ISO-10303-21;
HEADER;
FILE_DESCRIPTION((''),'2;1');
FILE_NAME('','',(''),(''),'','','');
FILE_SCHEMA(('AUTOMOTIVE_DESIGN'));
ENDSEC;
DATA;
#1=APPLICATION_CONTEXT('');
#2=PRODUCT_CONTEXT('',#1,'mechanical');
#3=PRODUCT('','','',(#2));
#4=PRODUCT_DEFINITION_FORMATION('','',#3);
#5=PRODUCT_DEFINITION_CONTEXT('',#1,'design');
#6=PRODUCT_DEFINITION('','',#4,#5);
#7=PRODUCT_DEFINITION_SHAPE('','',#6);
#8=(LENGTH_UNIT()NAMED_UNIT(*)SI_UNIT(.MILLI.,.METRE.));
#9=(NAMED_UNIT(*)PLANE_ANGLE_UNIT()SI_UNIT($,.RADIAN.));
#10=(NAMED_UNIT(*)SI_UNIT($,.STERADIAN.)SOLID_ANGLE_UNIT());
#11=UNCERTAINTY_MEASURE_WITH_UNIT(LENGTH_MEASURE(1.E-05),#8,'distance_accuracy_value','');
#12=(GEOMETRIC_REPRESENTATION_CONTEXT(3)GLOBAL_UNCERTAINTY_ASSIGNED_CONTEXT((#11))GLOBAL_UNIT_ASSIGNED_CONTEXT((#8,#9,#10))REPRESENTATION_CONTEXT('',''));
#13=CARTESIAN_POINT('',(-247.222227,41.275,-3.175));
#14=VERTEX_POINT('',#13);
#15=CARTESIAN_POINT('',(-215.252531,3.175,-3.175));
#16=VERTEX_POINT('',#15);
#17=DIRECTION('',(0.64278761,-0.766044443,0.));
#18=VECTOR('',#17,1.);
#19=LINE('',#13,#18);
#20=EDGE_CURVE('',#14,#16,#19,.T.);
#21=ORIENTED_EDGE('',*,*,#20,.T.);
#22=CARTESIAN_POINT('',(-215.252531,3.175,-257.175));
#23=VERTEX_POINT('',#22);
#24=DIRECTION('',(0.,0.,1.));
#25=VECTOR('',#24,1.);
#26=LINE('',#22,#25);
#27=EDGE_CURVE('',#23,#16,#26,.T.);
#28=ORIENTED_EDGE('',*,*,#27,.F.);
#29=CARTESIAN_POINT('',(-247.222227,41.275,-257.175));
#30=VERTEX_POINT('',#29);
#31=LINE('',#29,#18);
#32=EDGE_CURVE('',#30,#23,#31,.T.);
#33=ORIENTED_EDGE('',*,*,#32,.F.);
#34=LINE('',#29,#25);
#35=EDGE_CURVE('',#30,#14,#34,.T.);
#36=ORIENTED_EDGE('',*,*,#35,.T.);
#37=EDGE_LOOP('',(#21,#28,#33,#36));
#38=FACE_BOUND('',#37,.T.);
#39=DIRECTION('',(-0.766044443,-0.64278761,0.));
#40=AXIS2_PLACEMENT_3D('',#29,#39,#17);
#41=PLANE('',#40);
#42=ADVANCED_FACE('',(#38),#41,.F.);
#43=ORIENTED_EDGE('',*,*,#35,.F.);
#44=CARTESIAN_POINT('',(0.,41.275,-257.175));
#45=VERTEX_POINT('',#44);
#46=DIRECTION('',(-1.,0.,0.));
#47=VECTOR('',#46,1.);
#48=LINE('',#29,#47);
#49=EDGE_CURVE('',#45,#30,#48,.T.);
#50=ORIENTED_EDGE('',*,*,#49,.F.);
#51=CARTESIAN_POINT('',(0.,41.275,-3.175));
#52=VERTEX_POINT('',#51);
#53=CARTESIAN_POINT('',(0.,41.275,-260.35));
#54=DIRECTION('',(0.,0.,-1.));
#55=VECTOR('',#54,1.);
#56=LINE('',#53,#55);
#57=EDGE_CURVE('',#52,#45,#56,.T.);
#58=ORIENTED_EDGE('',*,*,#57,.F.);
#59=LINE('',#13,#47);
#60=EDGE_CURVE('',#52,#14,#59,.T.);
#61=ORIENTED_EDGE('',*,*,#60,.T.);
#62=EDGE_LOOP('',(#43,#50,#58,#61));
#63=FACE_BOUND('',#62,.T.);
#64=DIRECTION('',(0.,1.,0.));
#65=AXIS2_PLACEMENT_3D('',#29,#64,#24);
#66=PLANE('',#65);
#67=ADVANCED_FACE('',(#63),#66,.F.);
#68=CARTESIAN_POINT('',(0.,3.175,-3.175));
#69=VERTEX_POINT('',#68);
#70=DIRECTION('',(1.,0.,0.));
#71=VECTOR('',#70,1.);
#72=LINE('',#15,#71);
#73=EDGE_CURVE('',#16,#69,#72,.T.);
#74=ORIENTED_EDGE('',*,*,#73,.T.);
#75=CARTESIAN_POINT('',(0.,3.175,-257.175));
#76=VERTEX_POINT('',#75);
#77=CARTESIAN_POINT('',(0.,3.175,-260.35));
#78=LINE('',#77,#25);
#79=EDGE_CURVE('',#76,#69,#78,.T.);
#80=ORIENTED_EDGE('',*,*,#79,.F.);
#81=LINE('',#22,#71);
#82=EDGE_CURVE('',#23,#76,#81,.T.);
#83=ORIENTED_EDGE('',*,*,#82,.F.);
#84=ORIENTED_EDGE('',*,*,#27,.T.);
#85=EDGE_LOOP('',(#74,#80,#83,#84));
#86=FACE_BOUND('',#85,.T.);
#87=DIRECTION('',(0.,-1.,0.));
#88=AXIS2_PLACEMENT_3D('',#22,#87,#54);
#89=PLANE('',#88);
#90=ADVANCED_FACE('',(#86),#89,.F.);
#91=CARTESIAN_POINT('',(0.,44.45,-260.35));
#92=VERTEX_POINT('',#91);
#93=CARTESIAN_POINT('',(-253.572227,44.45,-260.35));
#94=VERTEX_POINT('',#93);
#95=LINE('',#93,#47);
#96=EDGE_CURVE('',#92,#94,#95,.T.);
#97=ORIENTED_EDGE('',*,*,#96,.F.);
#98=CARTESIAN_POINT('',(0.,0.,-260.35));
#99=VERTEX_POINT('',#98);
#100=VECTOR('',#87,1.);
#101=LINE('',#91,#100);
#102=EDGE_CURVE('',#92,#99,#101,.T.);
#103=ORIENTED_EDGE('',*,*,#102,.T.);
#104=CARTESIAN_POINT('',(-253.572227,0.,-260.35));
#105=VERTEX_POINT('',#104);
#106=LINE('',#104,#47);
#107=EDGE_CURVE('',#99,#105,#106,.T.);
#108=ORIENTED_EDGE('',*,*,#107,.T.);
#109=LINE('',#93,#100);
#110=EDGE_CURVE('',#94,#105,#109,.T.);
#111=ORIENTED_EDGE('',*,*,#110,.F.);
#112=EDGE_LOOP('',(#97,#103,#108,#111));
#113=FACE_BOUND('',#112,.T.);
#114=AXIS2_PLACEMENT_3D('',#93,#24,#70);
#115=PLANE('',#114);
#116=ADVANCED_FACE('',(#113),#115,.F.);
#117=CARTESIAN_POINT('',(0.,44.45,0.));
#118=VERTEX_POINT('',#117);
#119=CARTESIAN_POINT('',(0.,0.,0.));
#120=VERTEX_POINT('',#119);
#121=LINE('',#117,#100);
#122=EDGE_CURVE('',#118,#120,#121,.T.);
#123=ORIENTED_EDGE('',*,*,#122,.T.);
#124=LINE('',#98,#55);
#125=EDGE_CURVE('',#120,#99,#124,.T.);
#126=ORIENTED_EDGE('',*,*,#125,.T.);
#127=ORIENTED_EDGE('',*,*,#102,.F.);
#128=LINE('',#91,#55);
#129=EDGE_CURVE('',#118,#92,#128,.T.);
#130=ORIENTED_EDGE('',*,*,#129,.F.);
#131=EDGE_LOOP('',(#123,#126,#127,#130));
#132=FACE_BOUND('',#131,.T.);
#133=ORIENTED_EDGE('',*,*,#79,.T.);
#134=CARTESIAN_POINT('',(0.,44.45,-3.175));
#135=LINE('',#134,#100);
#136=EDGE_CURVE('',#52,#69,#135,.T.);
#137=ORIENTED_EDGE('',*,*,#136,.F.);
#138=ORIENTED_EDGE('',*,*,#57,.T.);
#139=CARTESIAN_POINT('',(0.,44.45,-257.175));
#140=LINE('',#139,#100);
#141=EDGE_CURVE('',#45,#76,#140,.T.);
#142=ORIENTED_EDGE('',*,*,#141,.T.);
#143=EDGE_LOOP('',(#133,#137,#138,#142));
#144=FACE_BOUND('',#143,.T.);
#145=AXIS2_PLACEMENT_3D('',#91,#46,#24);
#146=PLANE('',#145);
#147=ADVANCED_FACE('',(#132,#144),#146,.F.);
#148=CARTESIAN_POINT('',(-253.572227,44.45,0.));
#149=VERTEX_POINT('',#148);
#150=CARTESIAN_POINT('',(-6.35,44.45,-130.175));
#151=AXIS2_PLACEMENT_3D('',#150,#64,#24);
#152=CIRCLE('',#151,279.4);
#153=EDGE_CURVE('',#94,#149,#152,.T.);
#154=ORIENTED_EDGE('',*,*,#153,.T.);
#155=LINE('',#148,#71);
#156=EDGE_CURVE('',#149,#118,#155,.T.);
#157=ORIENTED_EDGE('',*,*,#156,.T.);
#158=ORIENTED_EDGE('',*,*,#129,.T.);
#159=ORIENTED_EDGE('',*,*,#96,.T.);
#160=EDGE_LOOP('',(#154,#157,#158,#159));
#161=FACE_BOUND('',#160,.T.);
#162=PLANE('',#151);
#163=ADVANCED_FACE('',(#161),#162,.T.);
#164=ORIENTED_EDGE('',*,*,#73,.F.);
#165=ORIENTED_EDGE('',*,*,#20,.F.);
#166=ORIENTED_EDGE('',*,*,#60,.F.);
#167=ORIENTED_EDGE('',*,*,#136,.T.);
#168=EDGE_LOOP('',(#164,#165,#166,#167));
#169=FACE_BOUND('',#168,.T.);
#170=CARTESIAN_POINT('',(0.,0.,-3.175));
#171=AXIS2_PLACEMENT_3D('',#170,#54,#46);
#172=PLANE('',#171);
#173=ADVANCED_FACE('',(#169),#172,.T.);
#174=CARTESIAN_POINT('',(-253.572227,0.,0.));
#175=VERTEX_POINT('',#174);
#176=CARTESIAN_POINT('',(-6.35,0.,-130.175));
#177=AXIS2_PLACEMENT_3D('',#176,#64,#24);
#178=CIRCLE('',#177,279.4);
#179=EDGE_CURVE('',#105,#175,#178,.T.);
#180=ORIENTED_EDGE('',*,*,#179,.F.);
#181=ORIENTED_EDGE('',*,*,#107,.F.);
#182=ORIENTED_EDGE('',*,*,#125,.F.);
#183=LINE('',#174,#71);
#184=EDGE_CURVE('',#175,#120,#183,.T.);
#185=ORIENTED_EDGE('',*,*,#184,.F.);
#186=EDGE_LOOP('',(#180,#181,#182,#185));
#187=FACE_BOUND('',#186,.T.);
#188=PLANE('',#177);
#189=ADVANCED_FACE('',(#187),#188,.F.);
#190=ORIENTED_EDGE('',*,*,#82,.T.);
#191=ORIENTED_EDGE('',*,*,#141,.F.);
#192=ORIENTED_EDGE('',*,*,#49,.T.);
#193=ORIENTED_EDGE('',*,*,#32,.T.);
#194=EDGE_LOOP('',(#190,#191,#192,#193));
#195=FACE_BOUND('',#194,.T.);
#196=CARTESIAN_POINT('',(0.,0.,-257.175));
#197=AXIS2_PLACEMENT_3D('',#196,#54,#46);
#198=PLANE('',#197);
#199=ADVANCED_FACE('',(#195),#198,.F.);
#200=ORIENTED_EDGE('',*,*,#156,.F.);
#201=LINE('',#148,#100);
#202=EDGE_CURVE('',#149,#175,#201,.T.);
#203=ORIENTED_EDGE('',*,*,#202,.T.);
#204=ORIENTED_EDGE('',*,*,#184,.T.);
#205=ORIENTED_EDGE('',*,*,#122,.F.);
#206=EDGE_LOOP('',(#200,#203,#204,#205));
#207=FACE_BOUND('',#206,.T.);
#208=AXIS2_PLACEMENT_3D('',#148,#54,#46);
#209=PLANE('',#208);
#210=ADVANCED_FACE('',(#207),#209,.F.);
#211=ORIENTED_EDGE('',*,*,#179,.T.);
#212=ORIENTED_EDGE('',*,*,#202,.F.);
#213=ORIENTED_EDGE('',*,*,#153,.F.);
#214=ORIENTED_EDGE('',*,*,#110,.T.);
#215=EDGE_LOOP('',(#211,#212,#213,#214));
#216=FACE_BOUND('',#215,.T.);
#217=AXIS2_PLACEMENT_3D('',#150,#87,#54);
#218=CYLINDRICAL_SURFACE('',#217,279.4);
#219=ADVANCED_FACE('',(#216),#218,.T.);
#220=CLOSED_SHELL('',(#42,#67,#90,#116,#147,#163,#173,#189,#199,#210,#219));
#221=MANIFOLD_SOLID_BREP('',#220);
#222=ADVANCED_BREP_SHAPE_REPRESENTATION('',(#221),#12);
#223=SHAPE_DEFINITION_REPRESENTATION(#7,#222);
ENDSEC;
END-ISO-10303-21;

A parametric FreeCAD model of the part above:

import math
import FreeCAD as App
import Part
import Sketcher
from FreeCAD import Vector
Q = App.Units.Quantity


def add_polygon(sketch, points):
    """Adds a closed chain of lines whose ends are joined by coincident constraints."""
    first, n = sketch.GeometryCount, len(points)
    for a, b in zip(points, points[1:] + points[:1]):
        sketch.addGeometry(Part.LineSegment(App.Vector(*a, 0), App.Vector(*b, 0)), False)
    for i in range(n):
        sketch.addConstraint(Sketcher.Constraint("Coincident", first + i, 2, first + (i + 1) % n, 1))

doc = App.newDocument("Part")
body = doc.addObject("PartDesign::Body", "Body")

# Sketch on XZ plane
sketch1 = body.newObject("Sketcher::SketchObject", "Sketch")
sketch1.AttachmentSupport = (doc.getObject("XZ_Plane"), [""])
sketch1.MapMode = "FlatFace"
sketch1.addGeometry(Part.LineSegment(Vector(0, -260, 0), Vector(-254, -260, 0)), False)
sketch1.addGeometry(Part.ArcOfCircle(Part.Circle(Vector(-6, -130, 0), Vector(0, 0, 1), 279), math.radians(152), math.radians(208)), False)
sketch1.addGeometry(Part.LineSegment(Vector(-254, 0, 0), Vector(0, 0, 0)), False)
sketch1.addGeometry(Part.LineSegment(Vector(0, 0, 0), Vector(0, -260, 0)), False)
sketch1.addConstraint(Sketcher.Constraint("Coincident", 0, 2, 1, 2))
sketch1.addConstraint(Sketcher.Constraint("Coincident", 1, 1, 2, 1))
sketch1.addConstraint(Sketcher.Constraint("Coincident", 2, 2, 3, 1))
sketch1.addConstraint(Sketcher.Constraint("Coincident", 3, 2, 0, 1))
sketch1.addConstraint(Sketcher.Constraint("Horizontal", 0))
sketch1.addConstraint(Sketcher.Constraint("Horizontal", 2))
sketch1.addConstraint(Sketcher.Constraint("Vertical", 3))
sketch1.addConstraint(Sketcher.Constraint("Coincident", 2, 2, -1, 1))
sketch1.addConstraint(Sketcher.Constraint("Vertical", 0, 2, 1, 1))
sketch1.addConstraint(Sketcher.Constraint("Radius", 1, Q("11 in")))
sketch1.addConstraint(Sketcher.Constraint("DistanceY", 3, 2, 3, 1, Q("10.25 in")))
sketch1.addConstraint(Sketcher.Constraint("DistanceX", 1, 3, -1, 1, Q("0.25 in")))
pad1 = body.newObject("PartDesign::Pad", "Pad")
pad1.Profile = sketch1
pad1.Length = Q("1.75 in")
pad1.Reversed = True

# Sketch on XY plane
sketch2 = body.newObject("Sketcher::SketchObject", "Sketch001")
sketch2.AttachmentSupport = (doc.getObject("XY_Plane"), [""])
sketch2.MapMode = "FlatFace"
sketch2.AttachmentOffset = App.Placement(Vector(0, 0, -0.125 * 25.4), App.Rotation())
add_polygon(sketch2, [(-247, 41), (-215, 3), (33, 3), (33, 41)])  # lines 0-3
sketch2.addConstraint(Sketcher.Constraint("Horizontal", 1))
sketch2.addConstraint(Sketcher.Constraint("Vertical", 2))
sketch2.addConstraint(Sketcher.Constraint("Horizontal", 3))
sketch2.addConstraint(Sketcher.Constraint("DistanceY", 2, 1, 2, 2, Q("1.5 in")))
sketch2.addConstraint(Sketcher.Constraint("Angle", 0, Q("-50 deg")))
sketch2.addConstraint(Sketcher.Constraint("DistanceY", -1, 1, 0, 2, Q("0.125 in")))
sketch2.addConstraint(Sketcher.Constraint("DistanceX", 1, 1, 1, 2, Q("248.090101 mm")))
sketch2.addConstraint(Sketcher.Constraint("DistanceX", 0, 2, -1, 1, Q("215.252531 mm")))
pocket1 = body.newObject("PartDesign::Pocket", "Pocket")
pocket1.Profile = sketch2
pocket1.Length = Q("10 in")

doc.recompute()
